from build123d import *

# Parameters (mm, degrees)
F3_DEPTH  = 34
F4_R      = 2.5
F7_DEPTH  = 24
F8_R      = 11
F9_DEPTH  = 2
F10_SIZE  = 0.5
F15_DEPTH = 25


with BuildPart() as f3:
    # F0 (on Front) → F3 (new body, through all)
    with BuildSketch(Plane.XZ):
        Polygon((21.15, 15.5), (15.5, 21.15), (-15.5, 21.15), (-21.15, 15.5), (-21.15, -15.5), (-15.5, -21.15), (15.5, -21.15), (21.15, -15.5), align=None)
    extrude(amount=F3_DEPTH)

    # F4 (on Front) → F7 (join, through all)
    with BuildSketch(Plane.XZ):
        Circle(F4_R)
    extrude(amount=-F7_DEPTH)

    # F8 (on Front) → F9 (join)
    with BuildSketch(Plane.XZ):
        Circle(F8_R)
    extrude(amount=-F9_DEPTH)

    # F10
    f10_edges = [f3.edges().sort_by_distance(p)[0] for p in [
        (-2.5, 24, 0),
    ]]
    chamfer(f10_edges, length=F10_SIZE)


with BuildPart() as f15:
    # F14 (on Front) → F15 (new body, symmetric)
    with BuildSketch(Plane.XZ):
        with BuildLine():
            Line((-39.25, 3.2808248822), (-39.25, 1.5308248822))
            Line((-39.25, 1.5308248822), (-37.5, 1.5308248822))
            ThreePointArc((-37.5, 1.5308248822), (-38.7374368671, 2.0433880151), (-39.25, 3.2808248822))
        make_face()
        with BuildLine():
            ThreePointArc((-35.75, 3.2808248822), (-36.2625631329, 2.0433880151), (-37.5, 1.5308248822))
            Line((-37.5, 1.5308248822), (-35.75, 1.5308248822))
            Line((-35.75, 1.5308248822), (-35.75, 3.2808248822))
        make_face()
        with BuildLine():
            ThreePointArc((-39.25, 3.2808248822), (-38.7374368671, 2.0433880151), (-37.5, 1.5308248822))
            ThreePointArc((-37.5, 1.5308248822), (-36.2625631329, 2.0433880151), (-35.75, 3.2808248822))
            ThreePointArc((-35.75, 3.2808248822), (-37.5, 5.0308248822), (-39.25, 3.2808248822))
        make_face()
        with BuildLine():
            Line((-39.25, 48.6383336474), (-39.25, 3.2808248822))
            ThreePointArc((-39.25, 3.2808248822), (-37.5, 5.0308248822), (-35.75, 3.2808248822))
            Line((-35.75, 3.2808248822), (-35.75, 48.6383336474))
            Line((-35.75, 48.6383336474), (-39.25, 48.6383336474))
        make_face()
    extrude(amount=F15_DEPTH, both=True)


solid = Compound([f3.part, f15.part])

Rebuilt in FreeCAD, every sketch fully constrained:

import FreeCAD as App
import Part
import Sketcher


def edges_at(feature, points):
    """Names of the edges that pass closest to the given points."""
    edges = feature.Shape.Edges
    near = lambda p: min(range(len(edges)), key=lambda i: edges[i].distToShape(Part.Vertex(*p))[0])
    return sorted({f"Edge{near(p) + 1}" for p in points})

doc = App.newDocument("Part")
body = doc.addObject("PartDesign::Body", "Body")

sketch1 = body.newObject("Sketcher::SketchObject", "Sketch")
sketch1.AttachmentSupport = (doc.getObject("XZ_Plane"), [""])
sketch1.MapMode = "FlatFace"
sketch1.addGeometry([
    Part.LineSegment(App.Vector(21, 16, 0), App.Vector(16, 21, 0)),
    Part.LineSegment(App.Vector(16, 21, 0), App.Vector(-16, 21, 0)),
    Part.LineSegment(App.Vector(-16, 21, 0), App.Vector(-21, 16, 0)),
    Part.LineSegment(App.Vector(-21, 16, 0), App.Vector(-21, -16, 0)),
    Part.LineSegment(App.Vector(-21, -16, 0), App.Vector(-16, -21, 0)),
    Part.LineSegment(App.Vector(-16, -21, 0), App.Vector(16, -21, 0)),
    Part.LineSegment(App.Vector(16, -21, 0), App.Vector(21, -16, 0)),
    Part.LineSegment(App.Vector(21, -16, 0), App.Vector(21, 16, 0)),
], False)
sketch1.addConstraint([
    Sketcher.Constraint("Coincident", 0, 2, 1, 1),
    Sketcher.Constraint("Coincident", 1, 2, 2, 1),
    Sketcher.Constraint("Coincident", 2, 2, 3, 1),
    Sketcher.Constraint("Coincident", 3, 2, 4, 1),
    Sketcher.Constraint("Coincident", 4, 2, 5, 1),
    Sketcher.Constraint("Coincident", 5, 2, 6, 1),
    Sketcher.Constraint("Coincident", 6, 2, 7, 1),
    Sketcher.Constraint("Coincident", 7, 2, 0, 1),
    Sketcher.Constraint("Horizontal", 1),
    Sketcher.Constraint("Vertical", 3),
    Sketcher.Constraint("Horizontal", 5),
    Sketcher.Constraint("Vertical", 7),
    Sketcher.Constraint("Symmetric", 0, 2, 4, 2, -1, 1),
    Sketcher.Constraint("Symmetric", 2, 2, 6, 2, -1, 1),
    Sketcher.Constraint("Perpendicular", 0, 2),
    Sketcher.Constraint("Perpendicular", 2, 4),
    Sketcher.Constraint("Perpendicular", 4, 6),
    Sketcher.Constraint("Horizontal", 3, 2, 6, 2),
    Sketcher.Constraint("Vertical", 1, 2, 4, 2),
    Sketcher.Constraint("Equal", 5, 3),
    Sketcher.Constraint("DistanceX", 1, 2, 1, 1, 31.0),
    Sketcher.Constraint("DistanceY", 4, 2, 1, 2, 42.3),
])
pad1 = body.newObject("PartDesign::Pad", "Pad")
pad1.Profile = sketch1
pad1.Length = 34

sketch2 = body.newObject("Sketcher::SketchObject", "Sketch001")
sketch2.AttachmentSupport = (doc.getObject("XZ_Plane"), [""])
sketch2.MapMode = "FlatFace"
sketch2.addGeometry(Part.Circle(App.Vector(0, 0, 0), App.Vector(0, 0, 1), 2.5), False)
sketch2.addConstraint([
    Sketcher.Constraint("Coincident", 0, 3, -1, 1),
    Sketcher.Constraint("Diameter", 0, 5.0),
])
pad2 = body.newObject("PartDesign::Pad", "Pad001")
pad2.Profile = sketch2
pad2.Length = 24
pad2.Reversed = True

sketch3 = body.newObject("Sketcher::SketchObject", "Sketch002")
sketch3.AttachmentSupport = (doc.getObject("XZ_Plane"), [""])
sketch3.MapMode = "FlatFace"
sketch3.addGeometry(Part.Circle(App.Vector(0, 0, 0), App.Vector(0, 0, 1), 11), False)
sketch3.addConstraint([
    Sketcher.Constraint("Coincident", 0, 3, -1, 1),
    Sketcher.Constraint("Diameter", 0, 22.0),
])
pad3 = body.newObject("PartDesign::Pad", "Pad002")
pad3.Profile = sketch3
pad3.Length = 2
pad3.Reversed = True
doc.recompute()

chamfer = body.newObject("PartDesign::Chamfer", "Chamfer")
chamfer.Base = (pad3, edges_at(pad3, [(-2.5, 24, 0)]))
chamfer.Size = 0.5
body2 = doc.addObject("PartDesign::Body", "Body001")

sketch4 = body2.newObject("Sketcher::SketchObject", "Sketch003")
sketch4.AttachmentSupport = (doc.getObject("XZ_Plane001"), [""])
sketch4.MapMode = "FlatFace"
sketch4.addGeometry([
    Part.LineSegment(App.Vector(-39.2, 1.5, 0), App.Vector(-35.8, 1.5, 0)),
    Part.LineSegment(App.Vector(-35.8, 1.5, 0), App.Vector(-35.8, 48.6, 0)),
    Part.LineSegment(App.Vector(-35.8, 48.6, 0), App.Vector(-39.2, 48.6, 0)),
    Part.LineSegment(App.Vector(-39.2, 48.6, 0), App.Vector(-39.2, 1.5, 0)),
], False)
sketch4.addConstraint([
    Sketcher.Constraint("Coincident", 0, 2, 1, 1),
    Sketcher.Constraint("Coincident", 1, 2, 2, 1),
    Sketcher.Constraint("Coincident", 2, 2, 3, 1),
    Sketcher.Constraint("Coincident", 3, 2, 0, 1),
    Sketcher.Constraint("Horizontal", 0),
    Sketcher.Constraint("Vertical", 1),
    Sketcher.Constraint("Horizontal", 2),
    Sketcher.Constraint("Vertical", 3),
    Sketcher.Constraint("DistanceX", 0, 1, 0, 2, 3.5),
    Sketcher.Constraint("DistanceX", 0, 2, -1, 1, 35.75),
    Sketcher.Constraint("DistanceY", 1, 1, 1, 2, 47.107509),
    Sketcher.Constraint("DistanceY", -1, 1, 0, 2, 1.530825),
])
pad4 = body2.newObject("PartDesign::Pad", "Pad003")
pad4.Profile = sketch4
pad4.Length = 50
pad4.Midplane = True

doc.recompute()
